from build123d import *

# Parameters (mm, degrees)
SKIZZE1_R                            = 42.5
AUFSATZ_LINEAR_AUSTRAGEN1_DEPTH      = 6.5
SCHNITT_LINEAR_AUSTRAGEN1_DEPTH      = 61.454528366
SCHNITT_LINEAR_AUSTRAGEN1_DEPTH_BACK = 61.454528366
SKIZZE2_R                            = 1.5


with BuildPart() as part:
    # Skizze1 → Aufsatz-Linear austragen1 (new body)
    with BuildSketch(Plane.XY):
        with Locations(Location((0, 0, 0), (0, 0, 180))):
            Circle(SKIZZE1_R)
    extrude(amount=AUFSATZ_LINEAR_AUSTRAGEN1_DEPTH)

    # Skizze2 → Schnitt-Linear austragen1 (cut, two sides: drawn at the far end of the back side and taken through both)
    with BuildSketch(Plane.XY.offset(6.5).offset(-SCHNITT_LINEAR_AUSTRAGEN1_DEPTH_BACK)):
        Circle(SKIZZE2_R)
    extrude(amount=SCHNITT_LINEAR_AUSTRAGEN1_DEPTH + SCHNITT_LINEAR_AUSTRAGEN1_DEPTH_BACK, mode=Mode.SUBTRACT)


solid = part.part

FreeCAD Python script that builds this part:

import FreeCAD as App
import Part
import Sketcher

V = App.Vector
Q = App.Units.Quantity

doc = App.newDocument("Part")
body = doc.addObject("PartDesign::Body", "Body")

# Sketch on XY plane
sketch1 = body.newObject("Sketcher::SketchObject", "Sketch")
sketch1.AttachmentSupport = (doc.getObject("XY_Plane"), [""])
sketch1.MapMode = "FlatFace"
sketch1.addGeometry(Part.Circle(V(0, 0, 0), V(0, 0, 1), 42.5), False)
sketch1.addConstraint([
    Sketcher.Constraint("Coincident", 0, 3, -1, 1),
    Sketcher.Constraint("Diameter", 0, Q("85 mm")),
])
pad1 = body.newObject("PartDesign::Pad", "Pad")
pad1.Profile = sketch1
pad1.Length = 6.5

# Sketch on XY plane
sketch2 = body.newObject("Sketcher::SketchObject", "Sketch001")
sketch2.AttachmentSupport = (doc.getObject("XY_Plane"), [""])
sketch2.MapMode = "FlatFace"
sketch2.AttachmentOffset = App.Placement(V(0, 0, 6.5), App.Rotation())
sketch2.addGeometry(Part.Circle(V(0, 0, 0), V(0, 0, 1), 1.5), False)
sketch2.addConstraint([
    Sketcher.Constraint("Coincident", 0, 3, -1, 1),
    Sketcher.Constraint("Diameter", 0, Q("3 mm")),
])
pocket1 = body.newObject("PartDesign::Pocket", "Pocket")
pocket1.Profile = sketch2
pocket1.Type = "ThroughAll"
pocket1.Midplane = True

doc.recompute()
